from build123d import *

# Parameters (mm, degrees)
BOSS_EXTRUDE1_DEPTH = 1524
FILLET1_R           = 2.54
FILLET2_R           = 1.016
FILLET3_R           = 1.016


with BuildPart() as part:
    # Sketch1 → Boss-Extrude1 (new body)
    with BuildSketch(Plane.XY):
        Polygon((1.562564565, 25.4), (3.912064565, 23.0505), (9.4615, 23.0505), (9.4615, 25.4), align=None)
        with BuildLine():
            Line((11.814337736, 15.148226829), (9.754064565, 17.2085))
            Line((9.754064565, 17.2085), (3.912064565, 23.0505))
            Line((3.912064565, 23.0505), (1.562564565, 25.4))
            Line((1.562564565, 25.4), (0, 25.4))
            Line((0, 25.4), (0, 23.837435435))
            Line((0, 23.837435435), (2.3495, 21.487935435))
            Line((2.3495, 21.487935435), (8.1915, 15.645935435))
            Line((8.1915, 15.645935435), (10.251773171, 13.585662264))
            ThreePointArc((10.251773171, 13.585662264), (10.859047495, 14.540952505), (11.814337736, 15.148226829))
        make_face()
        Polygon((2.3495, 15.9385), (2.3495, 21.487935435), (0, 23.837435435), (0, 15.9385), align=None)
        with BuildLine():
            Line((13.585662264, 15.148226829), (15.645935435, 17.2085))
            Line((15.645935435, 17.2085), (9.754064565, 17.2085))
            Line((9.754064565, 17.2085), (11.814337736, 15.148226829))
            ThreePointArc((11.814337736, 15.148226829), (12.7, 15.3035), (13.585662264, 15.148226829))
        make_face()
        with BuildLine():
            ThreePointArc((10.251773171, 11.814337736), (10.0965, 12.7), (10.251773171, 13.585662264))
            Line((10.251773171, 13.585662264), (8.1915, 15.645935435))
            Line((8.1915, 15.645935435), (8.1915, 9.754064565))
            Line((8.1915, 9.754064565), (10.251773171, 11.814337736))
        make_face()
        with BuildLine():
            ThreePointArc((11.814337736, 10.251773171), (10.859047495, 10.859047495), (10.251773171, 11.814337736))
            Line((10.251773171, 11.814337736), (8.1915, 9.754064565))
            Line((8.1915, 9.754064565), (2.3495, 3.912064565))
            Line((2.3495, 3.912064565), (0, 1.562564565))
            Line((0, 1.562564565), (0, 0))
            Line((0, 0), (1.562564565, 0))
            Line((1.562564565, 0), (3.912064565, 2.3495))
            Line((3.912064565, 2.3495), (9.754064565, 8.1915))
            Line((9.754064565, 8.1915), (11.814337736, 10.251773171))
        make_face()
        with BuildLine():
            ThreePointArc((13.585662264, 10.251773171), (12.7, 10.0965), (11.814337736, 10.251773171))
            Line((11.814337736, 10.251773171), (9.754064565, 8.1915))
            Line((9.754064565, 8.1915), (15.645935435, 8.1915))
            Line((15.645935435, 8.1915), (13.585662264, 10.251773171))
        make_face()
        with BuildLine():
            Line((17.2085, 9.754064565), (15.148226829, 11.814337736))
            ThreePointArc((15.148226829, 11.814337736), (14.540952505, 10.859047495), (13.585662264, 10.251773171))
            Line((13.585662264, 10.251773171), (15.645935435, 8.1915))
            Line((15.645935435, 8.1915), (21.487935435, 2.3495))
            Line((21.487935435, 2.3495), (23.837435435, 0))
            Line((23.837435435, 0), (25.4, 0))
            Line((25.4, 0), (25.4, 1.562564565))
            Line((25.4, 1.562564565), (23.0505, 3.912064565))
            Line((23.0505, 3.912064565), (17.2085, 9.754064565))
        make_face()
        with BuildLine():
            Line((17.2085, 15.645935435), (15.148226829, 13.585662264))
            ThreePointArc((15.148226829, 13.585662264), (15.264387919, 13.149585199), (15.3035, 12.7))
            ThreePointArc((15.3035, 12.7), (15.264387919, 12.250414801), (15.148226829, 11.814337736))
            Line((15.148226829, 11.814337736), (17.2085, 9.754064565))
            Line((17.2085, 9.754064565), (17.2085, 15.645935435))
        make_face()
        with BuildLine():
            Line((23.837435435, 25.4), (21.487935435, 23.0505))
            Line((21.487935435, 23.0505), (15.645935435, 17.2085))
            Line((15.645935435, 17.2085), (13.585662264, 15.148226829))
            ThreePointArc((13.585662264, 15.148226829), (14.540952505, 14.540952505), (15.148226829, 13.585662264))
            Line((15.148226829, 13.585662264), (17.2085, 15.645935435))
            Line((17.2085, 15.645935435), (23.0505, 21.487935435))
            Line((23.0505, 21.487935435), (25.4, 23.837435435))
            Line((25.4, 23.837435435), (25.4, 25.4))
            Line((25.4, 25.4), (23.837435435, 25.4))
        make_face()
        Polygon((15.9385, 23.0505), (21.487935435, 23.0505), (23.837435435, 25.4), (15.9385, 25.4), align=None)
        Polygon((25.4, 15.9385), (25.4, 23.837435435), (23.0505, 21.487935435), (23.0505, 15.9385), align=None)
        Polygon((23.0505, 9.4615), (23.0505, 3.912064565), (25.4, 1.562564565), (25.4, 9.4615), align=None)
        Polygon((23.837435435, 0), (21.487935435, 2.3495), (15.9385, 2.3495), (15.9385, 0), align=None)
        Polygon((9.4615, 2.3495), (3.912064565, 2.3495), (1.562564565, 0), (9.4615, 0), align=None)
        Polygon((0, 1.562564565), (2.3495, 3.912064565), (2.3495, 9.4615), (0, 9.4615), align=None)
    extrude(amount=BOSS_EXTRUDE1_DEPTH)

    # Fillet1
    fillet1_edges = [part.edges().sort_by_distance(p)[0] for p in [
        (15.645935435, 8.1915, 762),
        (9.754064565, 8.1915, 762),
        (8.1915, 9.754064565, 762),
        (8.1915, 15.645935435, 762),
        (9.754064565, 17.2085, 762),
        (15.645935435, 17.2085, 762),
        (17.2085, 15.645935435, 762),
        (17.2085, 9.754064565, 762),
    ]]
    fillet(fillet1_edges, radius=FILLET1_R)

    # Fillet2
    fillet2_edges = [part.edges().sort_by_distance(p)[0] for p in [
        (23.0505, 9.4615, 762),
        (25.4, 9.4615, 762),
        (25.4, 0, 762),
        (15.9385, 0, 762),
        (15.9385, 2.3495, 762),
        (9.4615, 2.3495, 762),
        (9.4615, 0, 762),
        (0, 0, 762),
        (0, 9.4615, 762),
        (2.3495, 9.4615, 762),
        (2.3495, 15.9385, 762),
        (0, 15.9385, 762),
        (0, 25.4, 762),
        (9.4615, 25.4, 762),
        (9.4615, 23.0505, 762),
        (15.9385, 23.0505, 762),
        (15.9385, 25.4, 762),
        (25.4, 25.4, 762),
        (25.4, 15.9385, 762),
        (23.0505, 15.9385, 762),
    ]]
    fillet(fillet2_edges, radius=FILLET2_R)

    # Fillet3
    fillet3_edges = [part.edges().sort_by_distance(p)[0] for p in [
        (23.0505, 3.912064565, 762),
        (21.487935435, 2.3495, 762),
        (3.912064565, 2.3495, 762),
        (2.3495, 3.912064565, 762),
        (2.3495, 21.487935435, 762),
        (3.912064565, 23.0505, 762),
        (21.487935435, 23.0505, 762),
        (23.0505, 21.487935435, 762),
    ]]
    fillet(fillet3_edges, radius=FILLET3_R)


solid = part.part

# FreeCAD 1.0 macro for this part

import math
import FreeCAD as App
import Part
import Sketcher
from FreeCAD import Vector
Q = App.Units.Quantity


def edges_at(feature, points):
    """Names of the edges that pass closest to the given points."""
    edges = feature.Shape.Edges
    near = lambda p: min(range(len(edges)), key=lambda i: edges[i].distToShape(Part.Vertex(*p))[0])
    return sorted({f"Edge{near(p) + 1}" for p in points})

doc = App.newDocument("Part")
params = doc.addObject("Spreadsheet::Sheet", "Params")
for row, (alias, value) in enumerate([
    ("pad1_length", "60 in"),
    ("fillet_radius", "0.1 in"),
    ("fillet2_radius", "0.04 in"),
    ("fillet3_radius", "0.04 in"),
], start=1):
    params.set(f"A{row}", alias)
    params.set(f"B{row}", "=" + value)
    params.setAlias(f"B{row}", alias)

body = doc.addObject("PartDesign::Body", "Body")

# Sketch on XY plane
sketch1 = doc.addObject("Sketcher::SketchObject", "Sketch")
body.addObject(sketch1)
sketch1.AttachmentSupport = (doc.XY_Plane, [""])
sketch1.MapMode = "FlatFace"
sketch1.addGeometry([
    Part.LineSegment(Vector(3.912065, 23.0505, 0), Vector(9.4615, 23.0505, 0)),  # 0
    Part.LineSegment(Vector(9.4615, 23.0505, 0), Vector(9.4615, 25.4, 0)),  # 1
    Part.LineSegment(Vector(9.4615, 25.4, 0), Vector(0, 25.4, 0)),  # 2
    Part.LineSegment(Vector(0, 25.4, 0), Vector(0, 15.9385, 0)),  # 3
    Part.LineSegment(Vector(0, 15.9385, 0), Vector(2.3495, 15.9385, 0)),  # 4
    Part.LineSegment(Vector(2.3495, 15.9385, 0), Vector(2.3495, 21.487935, 0)),  # 5
    Part.LineSegment(Vector(2.3495, 21.487935, 0), Vector(8.1915, 15.645935, 0)),  # 6
    Part.LineSegment(Vector(8.1915, 15.645935, 0), Vector(8.1915, 9.754065, 0)),  # 7
    Part.LineSegment(Vector(8.1915, 9.754065, 0), Vector(2.3495, 3.912065, 0)),  # 8
    Part.LineSegment(Vector(2.3495, 3.912065, 0), Vector(2.3495, 9.4615, 0)),  # 9
    Part.LineSegment(Vector(2.3495, 9.4615, 0), Vector(0, 9.4615, 0)),  # 10
    Part.LineSegment(Vector(0, 9.4615, 0), Vector(0, 0, 0)),  # 11
    Part.LineSegment(Vector(0, 0, 0), Vector(9.4615, 0, 0)),  # 12
    Part.LineSegment(Vector(9.4615, 0, 0), Vector(9.4615, 2.3495, 0)),  # 13
    Part.LineSegment(Vector(9.4615, 2.3495, 0), Vector(3.912065, 2.3495, 0)),  # 14
    Part.LineSegment(Vector(3.912065, 2.3495, 0), Vector(9.754065, 8.1915, 0)),  # 15
    Part.LineSegment(Vector(9.754065, 8.1915, 0), Vector(15.645935, 8.1915, 0)),  # 16
    Part.LineSegment(Vector(15.645935, 8.1915, 0), Vector(21.487935, 2.3495, 0)),  # 17
    Part.LineSegment(Vector(21.487935, 2.3495, 0), Vector(15.9385, 2.3495, 0)),  # 18
    Part.LineSegment(Vector(15.9385, 2.3495, 0), Vector(15.9385, 0, 0)),  # 19
    Part.LineSegment(Vector(15.9385, 0, 0), Vector(25.4, 0, 0)),  # 20
    Part.LineSegment(Vector(25.4, 0, 0), Vector(25.4, 9.4615, 0)),  # 21
    Part.LineSegment(Vector(25.4, 9.4615, 0), Vector(23.0505, 9.4615, 0)),  # 22
    Part.LineSegment(Vector(23.0505, 9.4615, 0), Vector(23.0505, 3.912065, 0)),  # 23
    Part.LineSegment(Vector(23.0505, 3.912065, 0), Vector(17.2085, 9.754065, 0)),  # 24
    Part.LineSegment(Vector(17.2085, 9.754065, 0), Vector(17.2085, 15.645935, 0)),  # 25
    Part.LineSegment(Vector(17.2085, 15.645935, 0), Vector(23.0505, 21.487935, 0)),  # 26
    Part.LineSegment(Vector(23.0505, 21.487935, 0), Vector(23.0505, 15.9385, 0)),  # 27
    Part.LineSegment(Vector(23.0505, 15.9385, 0), Vector(25.4, 15.9385, 0)),  # 28
    Part.LineSegment(Vector(25.4, 15.9385, 0), Vector(25.4, 25.4, 0)),  # 29
    Part.LineSegment(Vector(25.4, 25.4, 0), Vector(15.9385, 25.4, 0)),  # 30
    Part.LineSegment(Vector(15.9385, 25.4, 0), Vector(15.9385, 23.0505, 0)),  # 31
    Part.LineSegment(Vector(15.9385, 23.0505, 0), Vector(21.487935, 23.0505, 0)),  # 32
    Part.LineSegment(Vector(21.487935, 23.0505, 0), Vector(15.645935, 17.2085, 0)),  # 33
    Part.LineSegment(Vector(15.645935, 17.2085, 0), Vector(9.754065, 17.2085, 0)),  # 34
    Part.LineSegment(Vector(9.754065, 17.2085, 0), Vector(3.912065, 23.0505, 0)),  # 35
    Part.ArcOfCircle(Part.Circle(Vector(12.7, 12.7, 0), Vector(0, 0, 1), 2.6035), math.radians(0), math.radians(19.887926)),  # 36
    Part.ArcOfCircle(Part.Circle(Vector(12.7, 12.7, 0), Vector(0, 0, 1), 2.6035), math.radians(-19.887926), math.radians(0)),  # 37
    Part.ArcOfCircle(Part.Circle(Vector(12.7, 12.7, 0), Vector(0, 0, 1), 2.6035), math.radians(-70.112074), math.radians(-19.887926)),  # 38
    Part.ArcOfCircle(Part.Circle(Vector(12.7, 12.7, 0), Vector(0, 0, 1), 2.6035), math.radians(-109.887926), math.radians(-70.112074)),  # 39
    Part.ArcOfCircle(Part.Circle(Vector(12.7, 12.7, 0), Vector(0, 0, 1), 2.6035), math.radians(-160.112074), math.radians(-109.887926)),  # 40
    Part.ArcOfCircle(Part.Circle(Vector(12.7, 12.7, 0), Vector(0, 0, 1), 2.6035), math.radians(160.112074), math.radians(199.887926)),  # 41
    Part.ArcOfCircle(Part.Circle(Vector(12.7, 12.7, 0), Vector(0, 0, 1), 2.6035), math.radians(109.887926), math.radians(160.112074)),  # 42
    Part.ArcOfCircle(Part.Circle(Vector(12.7, 12.7, 0), Vector(0, 0, 1), 2.6035), math.radians(70.112074), math.radians(109.887926)),  # 43
    Part.ArcOfCircle(Part.Circle(Vector(12.7, 12.7, 0), Vector(0, 0, 1), 2.6035), math.radians(19.887926), math.radians(70.112074)),  # 44
], False)
sketch1.addConstraint([
    Sketcher.Constraint("Coincident", 0, 2, 1, 1),
    Sketcher.Constraint("Coincident", 1, 2, 2, 1),
    Sketcher.Constraint("Coincident", 2, 2, 3, 1),
    Sketcher.Constraint("Coincident", 3, 2, 4, 1),
    Sketcher.Constraint("Coincident", 4, 2, 5, 1),
    Sketcher.Constraint("Coincident", 5, 2, 6, 1),
    Sketcher.Constraint("Coincident", 6, 2, 7, 1),
    Sketcher.Constraint("Coincident", 7, 2, 8, 1),
    Sketcher.Constraint("Coincident", 8, 2, 9, 1),
    Sketcher.Constraint("Coincident", 9, 2, 10, 1),
    Sketcher.Constraint("Coincident", 10, 2, 11, 1),
    Sketcher.Constraint("Coincident", 11, 2, 12, 1),
    Sketcher.Constraint("Coincident", 12, 2, 13, 1),
    Sketcher.Constraint("Coincident", 13, 2, 14, 1),
    Sketcher.Constraint("Coincident", 14, 2, 15, 1),
    Sketcher.Constraint("Coincident", 15, 2, 16, 1),
    Sketcher.Constraint("Coincident", 16, 2, 17, 1),
    Sketcher.Constraint("Coincident", 17, 2, 18, 1),
    Sketcher.Constraint("Coincident", 18, 2, 19, 1),
    Sketcher.Constraint("Coincident", 19, 2, 20, 1),
    Sketcher.Constraint("Coincident", 20, 2, 21, 1),
    Sketcher.Constraint("Coincident", 21, 2, 22, 1),
    Sketcher.Constraint("Coincident", 22, 2, 23, 1),
    Sketcher.Constraint("Coincident", 23, 2, 24, 1),
    Sketcher.Constraint("Coincident", 24, 2, 25, 1),
    Sketcher.Constraint("Coincident", 25, 2, 26, 1),
    Sketcher.Constraint("Coincident", 26, 2, 27, 1),
    Sketcher.Constraint("Coincident", 27, 2, 28, 1),
    Sketcher.Constraint("Coincident", 28, 2, 29, 1),
    Sketcher.Constraint("Coincident", 29, 2, 30, 1),
    Sketcher.Constraint("Coincident", 30, 2, 31, 1),
    Sketcher.Constraint("Coincident", 31, 2, 32, 1),
    Sketcher.Constraint("Coincident", 32, 2, 33, 1),
    Sketcher.Constraint("Coincident", 33, 2, 34, 1),
    Sketcher.Constraint("Coincident", 34, 2, 35, 1),
    Sketcher.Constraint("Coincident", 35, 2, 0, 1),
    Sketcher.Constraint("Tangent", 36, 1, 37, 2),
    Sketcher.Constraint("Tangent", 37, 1, 38, 2),
    Sketcher.Constraint("Tangent", 38, 1, 39, 2),
    Sketcher.Constraint("Tangent", 39, 1, 40, 2),
    Sketcher.Constraint("Tangent", 40, 1, 41, 2),
    Sketcher.Constraint("Tangent", 41, 1, 42, 2),
    Sketcher.Constraint("Tangent", 42, 1, 43, 2),
    Sketcher.Constraint("Tangent", 43, 1, 44, 2),
    Sketcher.Constraint("Tangent", 44, 1, 36, 2),
    Sketcher.Constraint("Horizontal", 0),
    Sketcher.Constraint("Vertical", 1),
    Sketcher.Constraint("Horizontal", 2),
    Sketcher.Constraint("Vertical", 3),
    Sketcher.Constraint("Horizontal", 4),
    Sketcher.Constraint("Vertical", 5),
    Sketcher.Constraint("Vertical", 7),
    Sketcher.Constraint("Vertical", 9),
    Sketcher.Constraint("Horizontal", 10),
    Sketcher.Constraint("Vertical", 11),
    Sketcher.Constraint("Horizontal", 12),
    Sketcher.Constraint("Vertical", 13),
    Sketcher.Constraint("Horizontal", 14),
    Sketcher.Constraint("Horizontal", 16),
    Sketcher.Constraint("Horizontal", 18),
    Sketcher.Constraint("Vertical", 19),
    Sketcher.Constraint("Horizontal", 20),
    Sketcher.Constraint("Vertical", 21),
    Sketcher.Constraint("Horizontal", 22),
    Sketcher.Constraint("Vertical", 23),
    Sketcher.Constraint("Vertical", 25),
    Sketcher.Constraint("Vertical", 27),
    Sketcher.Constraint("Horizontal", 28),
    Sketcher.Constraint("Vertical", 29),
    Sketcher.Constraint("Horizontal", 30),
    Sketcher.Constraint("Vertical", 31),
    Sketcher.Constraint("Horizontal", 32),
    Sketcher.Constraint("Horizontal", 34),
    Sketcher.Constraint("Coincident", 11, 2, -1, 1),
    Sketcher.Constraint("Coincident", 38, 3, 36, 3),
    Sketcher.Constraint("Coincident", 40, 3, 36, 3),
    Sketcher.Constraint("Coincident", 42, 3, 36, 3),
    Sketcher.Constraint("PointOnObject", 2, 2, -2),
    Sketcher.Constraint("PointOnObject", 19, 2, -1),
    Sketcher.Constraint("Perpendicular", 6, 8),
    Sketcher.Constraint("Parallel", 8, 15),
    Sketcher.Constraint("Perpendicular", 15, 17),
    Sketcher.Constraint("Parallel", 17, 24),
    Sketcher.Constraint("Perpendicular", 24, 26),
    Sketcher.Constraint("Parallel", 26, 33),
    Sketcher.Constraint("Perpendicular", 33, 35),
    Sketcher.Constraint("Horizontal", 14, 2, 17, 2),
    Sketcher.Constraint("Horizontal", 10, 2, 21, 2),
    Sketcher.Constraint("Horizontal", 8, 2, 23, 2),
    Sketcher.Constraint("Horizontal", 7, 2, 24, 2),
    Sketcher.Constraint("Horizontal", 6, 2, 25, 2),
    Sketcher.Constraint("Horizontal", 5, 2, 26, 2),
    Sketcher.Constraint("Horizontal", 4, 2, 27, 2),
    Sketcher.Constraint("Horizontal", 2, 2, 29, 2),
    Sketcher.Constraint("Horizontal", 0, 2, 31, 2),
    Sketcher.Constraint("Horizontal", 44, 3, 36, 1),
    Sketcher.Constraint("Horizontal", 38, 1, 39, 1),
    Sketcher.Constraint("Horizontal", 37, 1, 40, 1),
    Sketcher.Constraint("Horizontal", 42, 1, 43, 1),
    Sketcher.Constraint("Horizontal", 41, 1, 44, 1),
    Sketcher.Constraint("Vertical", 5, 2, 8, 2),
    Sketcher.Constraint("Vertical", 1, 2, 12, 2),
    Sketcher.Constraint("Vertical", 23, 2, 26, 2),
    Sketcher.Constraint("Vertical", 21, 2, 28, 2),
    Sketcher.Constraint("Vertical", 19, 2, 30, 2),
    Sketcher.Constraint("Vertical", 17, 2, 32, 2),
    Sketcher.Constraint("Vertical", 16, 2, 33, 2),
    Sketcher.Constraint("Vertical", 15, 2, 34, 2),
    Sketcher.Constraint("Vertical", 40, 1, 41, 1),
    Sketcher.Constraint("Vertical", 39, 1, 42, 1),
    Sketcher.Constraint("Equal", 14, 18),
    Sketcher.Constraint("Equal", 12, 20),
    Sketcher.Constraint("Equal", 10, 22),
    Sketcher.Constraint("Equal", 28, 1),
    Sketcher.Constraint("Equal", 30, 3),
    Sketcher.Constraint("Equal", 32, 5),
    Sketcher.Constraint("Equal", 34, 7),
    Sketcher.Constraint("Equal", 5, 9),
    Sketcher.Constraint("Equal", 3, 11),
    Sketcher.Constraint("Equal", 1, 13),
    Sketcher.Constraint("Equal", 8, 15),
    Sketcher.Constraint("DistanceY", -1, 1, 1, 2, Q("1 in")),
    Sketcher.Constraint("DistanceX", -1, 1, 36, 3, Q("0.5 in")),
    Sketcher.Constraint("DistanceY", -1, 1, 36, 3, Q("0.5 in")),
    Sketcher.Constraint("Radius", 36, Q("0.1025 in")),
    Sketcher.Constraint("DistanceY", 3, 2, 0, 2, Q("0.28 in")),
    Sketcher.Constraint("DistanceX", 8, 2, 7, 2, Q("0.23 in")),
    Sketcher.Constraint("DistanceX", 2, 2, 2, 1, Q("0.3725 in")),
    Sketcher.Constraint("DistanceX", 16, 1, 16, 2, 5.891871),
    Sketcher.Constraint("DistanceX", -1, 1, 37, 1, 15.148227),
    Sketcher.Constraint("DistanceX", -1, 1, 38, 1, 13.585662),
])
pad1 = doc.addObject("PartDesign::Pad", "Pad")
body.addObject(pad1)
pad1.Profile = sketch1
pad1.setExpression("Length", "Params.pad1_length")
doc.recompute()

fillet = doc.addObject("PartDesign::Fillet", "Fillet")
body.addObject(fillet)
fillet.Base = (pad1, edges_at(pad1, [
    (15.646, 8.191, 762),
    (9.754, 8.191, 762),
    (8.191, 9.754, 762),
    (8.191, 15.646, 762),
    (9.754, 17.209, 762),
    (15.646, 17.209, 762),
    (17.209, 15.646, 762),
    (17.209, 9.754, 762),
]))
fillet.setExpression("Radius", "Params.fillet_radius")
doc.recompute()

fillet2 = doc.addObject("PartDesign::Fillet", "Fillet001")
body.addObject(fillet2)
fillet2.Base = (fillet, edges_at(fillet, [
    (23.05, 9.461, 762),
    (25.4, 9.461, 762),
    (25.4, 0, 762),
    (15.938, 0, 762),
    (15.938, 2.349, 762),
    (9.461, 2.349, 762),
    (9.461, 0, 762),
    (0, 0, 762),
    (0, 9.461, 762),
    (2.349, 9.461, 762),
    (2.349, 15.938, 762),
    (0, 15.938, 762),
    (0, 25.4, 762),
    (9.461, 25.4, 762),
    (9.461, 23.05, 762),
    (15.938, 23.05, 762),
    (15.938, 25.4, 762),
    (25.4, 25.4, 762),
    (25.4, 15.938, 762),
    (23.05, 15.938, 762),
]))
fillet2.setExpression("Radius", "Params.fillet2_radius")
doc.recompute()

fillet3 = doc.addObject("PartDesign::Fillet", "Fillet002")
body.addObject(fillet3)
fillet3.Base = (fillet2, edges_at(fillet2, [
    (23.05, 3.912, 762),
    (21.488, 2.349, 762),
    (3.912, 2.349, 762),
    (2.349, 3.912, 762),
    (2.349, 21.488, 762),
    (3.912, 23.05, 762),
    (21.488, 23.05, 762),
    (23.05, 21.488, 762),
]))
fillet3.setExpression("Radius", "Params.fillet3_radius")

doc.recompute()
